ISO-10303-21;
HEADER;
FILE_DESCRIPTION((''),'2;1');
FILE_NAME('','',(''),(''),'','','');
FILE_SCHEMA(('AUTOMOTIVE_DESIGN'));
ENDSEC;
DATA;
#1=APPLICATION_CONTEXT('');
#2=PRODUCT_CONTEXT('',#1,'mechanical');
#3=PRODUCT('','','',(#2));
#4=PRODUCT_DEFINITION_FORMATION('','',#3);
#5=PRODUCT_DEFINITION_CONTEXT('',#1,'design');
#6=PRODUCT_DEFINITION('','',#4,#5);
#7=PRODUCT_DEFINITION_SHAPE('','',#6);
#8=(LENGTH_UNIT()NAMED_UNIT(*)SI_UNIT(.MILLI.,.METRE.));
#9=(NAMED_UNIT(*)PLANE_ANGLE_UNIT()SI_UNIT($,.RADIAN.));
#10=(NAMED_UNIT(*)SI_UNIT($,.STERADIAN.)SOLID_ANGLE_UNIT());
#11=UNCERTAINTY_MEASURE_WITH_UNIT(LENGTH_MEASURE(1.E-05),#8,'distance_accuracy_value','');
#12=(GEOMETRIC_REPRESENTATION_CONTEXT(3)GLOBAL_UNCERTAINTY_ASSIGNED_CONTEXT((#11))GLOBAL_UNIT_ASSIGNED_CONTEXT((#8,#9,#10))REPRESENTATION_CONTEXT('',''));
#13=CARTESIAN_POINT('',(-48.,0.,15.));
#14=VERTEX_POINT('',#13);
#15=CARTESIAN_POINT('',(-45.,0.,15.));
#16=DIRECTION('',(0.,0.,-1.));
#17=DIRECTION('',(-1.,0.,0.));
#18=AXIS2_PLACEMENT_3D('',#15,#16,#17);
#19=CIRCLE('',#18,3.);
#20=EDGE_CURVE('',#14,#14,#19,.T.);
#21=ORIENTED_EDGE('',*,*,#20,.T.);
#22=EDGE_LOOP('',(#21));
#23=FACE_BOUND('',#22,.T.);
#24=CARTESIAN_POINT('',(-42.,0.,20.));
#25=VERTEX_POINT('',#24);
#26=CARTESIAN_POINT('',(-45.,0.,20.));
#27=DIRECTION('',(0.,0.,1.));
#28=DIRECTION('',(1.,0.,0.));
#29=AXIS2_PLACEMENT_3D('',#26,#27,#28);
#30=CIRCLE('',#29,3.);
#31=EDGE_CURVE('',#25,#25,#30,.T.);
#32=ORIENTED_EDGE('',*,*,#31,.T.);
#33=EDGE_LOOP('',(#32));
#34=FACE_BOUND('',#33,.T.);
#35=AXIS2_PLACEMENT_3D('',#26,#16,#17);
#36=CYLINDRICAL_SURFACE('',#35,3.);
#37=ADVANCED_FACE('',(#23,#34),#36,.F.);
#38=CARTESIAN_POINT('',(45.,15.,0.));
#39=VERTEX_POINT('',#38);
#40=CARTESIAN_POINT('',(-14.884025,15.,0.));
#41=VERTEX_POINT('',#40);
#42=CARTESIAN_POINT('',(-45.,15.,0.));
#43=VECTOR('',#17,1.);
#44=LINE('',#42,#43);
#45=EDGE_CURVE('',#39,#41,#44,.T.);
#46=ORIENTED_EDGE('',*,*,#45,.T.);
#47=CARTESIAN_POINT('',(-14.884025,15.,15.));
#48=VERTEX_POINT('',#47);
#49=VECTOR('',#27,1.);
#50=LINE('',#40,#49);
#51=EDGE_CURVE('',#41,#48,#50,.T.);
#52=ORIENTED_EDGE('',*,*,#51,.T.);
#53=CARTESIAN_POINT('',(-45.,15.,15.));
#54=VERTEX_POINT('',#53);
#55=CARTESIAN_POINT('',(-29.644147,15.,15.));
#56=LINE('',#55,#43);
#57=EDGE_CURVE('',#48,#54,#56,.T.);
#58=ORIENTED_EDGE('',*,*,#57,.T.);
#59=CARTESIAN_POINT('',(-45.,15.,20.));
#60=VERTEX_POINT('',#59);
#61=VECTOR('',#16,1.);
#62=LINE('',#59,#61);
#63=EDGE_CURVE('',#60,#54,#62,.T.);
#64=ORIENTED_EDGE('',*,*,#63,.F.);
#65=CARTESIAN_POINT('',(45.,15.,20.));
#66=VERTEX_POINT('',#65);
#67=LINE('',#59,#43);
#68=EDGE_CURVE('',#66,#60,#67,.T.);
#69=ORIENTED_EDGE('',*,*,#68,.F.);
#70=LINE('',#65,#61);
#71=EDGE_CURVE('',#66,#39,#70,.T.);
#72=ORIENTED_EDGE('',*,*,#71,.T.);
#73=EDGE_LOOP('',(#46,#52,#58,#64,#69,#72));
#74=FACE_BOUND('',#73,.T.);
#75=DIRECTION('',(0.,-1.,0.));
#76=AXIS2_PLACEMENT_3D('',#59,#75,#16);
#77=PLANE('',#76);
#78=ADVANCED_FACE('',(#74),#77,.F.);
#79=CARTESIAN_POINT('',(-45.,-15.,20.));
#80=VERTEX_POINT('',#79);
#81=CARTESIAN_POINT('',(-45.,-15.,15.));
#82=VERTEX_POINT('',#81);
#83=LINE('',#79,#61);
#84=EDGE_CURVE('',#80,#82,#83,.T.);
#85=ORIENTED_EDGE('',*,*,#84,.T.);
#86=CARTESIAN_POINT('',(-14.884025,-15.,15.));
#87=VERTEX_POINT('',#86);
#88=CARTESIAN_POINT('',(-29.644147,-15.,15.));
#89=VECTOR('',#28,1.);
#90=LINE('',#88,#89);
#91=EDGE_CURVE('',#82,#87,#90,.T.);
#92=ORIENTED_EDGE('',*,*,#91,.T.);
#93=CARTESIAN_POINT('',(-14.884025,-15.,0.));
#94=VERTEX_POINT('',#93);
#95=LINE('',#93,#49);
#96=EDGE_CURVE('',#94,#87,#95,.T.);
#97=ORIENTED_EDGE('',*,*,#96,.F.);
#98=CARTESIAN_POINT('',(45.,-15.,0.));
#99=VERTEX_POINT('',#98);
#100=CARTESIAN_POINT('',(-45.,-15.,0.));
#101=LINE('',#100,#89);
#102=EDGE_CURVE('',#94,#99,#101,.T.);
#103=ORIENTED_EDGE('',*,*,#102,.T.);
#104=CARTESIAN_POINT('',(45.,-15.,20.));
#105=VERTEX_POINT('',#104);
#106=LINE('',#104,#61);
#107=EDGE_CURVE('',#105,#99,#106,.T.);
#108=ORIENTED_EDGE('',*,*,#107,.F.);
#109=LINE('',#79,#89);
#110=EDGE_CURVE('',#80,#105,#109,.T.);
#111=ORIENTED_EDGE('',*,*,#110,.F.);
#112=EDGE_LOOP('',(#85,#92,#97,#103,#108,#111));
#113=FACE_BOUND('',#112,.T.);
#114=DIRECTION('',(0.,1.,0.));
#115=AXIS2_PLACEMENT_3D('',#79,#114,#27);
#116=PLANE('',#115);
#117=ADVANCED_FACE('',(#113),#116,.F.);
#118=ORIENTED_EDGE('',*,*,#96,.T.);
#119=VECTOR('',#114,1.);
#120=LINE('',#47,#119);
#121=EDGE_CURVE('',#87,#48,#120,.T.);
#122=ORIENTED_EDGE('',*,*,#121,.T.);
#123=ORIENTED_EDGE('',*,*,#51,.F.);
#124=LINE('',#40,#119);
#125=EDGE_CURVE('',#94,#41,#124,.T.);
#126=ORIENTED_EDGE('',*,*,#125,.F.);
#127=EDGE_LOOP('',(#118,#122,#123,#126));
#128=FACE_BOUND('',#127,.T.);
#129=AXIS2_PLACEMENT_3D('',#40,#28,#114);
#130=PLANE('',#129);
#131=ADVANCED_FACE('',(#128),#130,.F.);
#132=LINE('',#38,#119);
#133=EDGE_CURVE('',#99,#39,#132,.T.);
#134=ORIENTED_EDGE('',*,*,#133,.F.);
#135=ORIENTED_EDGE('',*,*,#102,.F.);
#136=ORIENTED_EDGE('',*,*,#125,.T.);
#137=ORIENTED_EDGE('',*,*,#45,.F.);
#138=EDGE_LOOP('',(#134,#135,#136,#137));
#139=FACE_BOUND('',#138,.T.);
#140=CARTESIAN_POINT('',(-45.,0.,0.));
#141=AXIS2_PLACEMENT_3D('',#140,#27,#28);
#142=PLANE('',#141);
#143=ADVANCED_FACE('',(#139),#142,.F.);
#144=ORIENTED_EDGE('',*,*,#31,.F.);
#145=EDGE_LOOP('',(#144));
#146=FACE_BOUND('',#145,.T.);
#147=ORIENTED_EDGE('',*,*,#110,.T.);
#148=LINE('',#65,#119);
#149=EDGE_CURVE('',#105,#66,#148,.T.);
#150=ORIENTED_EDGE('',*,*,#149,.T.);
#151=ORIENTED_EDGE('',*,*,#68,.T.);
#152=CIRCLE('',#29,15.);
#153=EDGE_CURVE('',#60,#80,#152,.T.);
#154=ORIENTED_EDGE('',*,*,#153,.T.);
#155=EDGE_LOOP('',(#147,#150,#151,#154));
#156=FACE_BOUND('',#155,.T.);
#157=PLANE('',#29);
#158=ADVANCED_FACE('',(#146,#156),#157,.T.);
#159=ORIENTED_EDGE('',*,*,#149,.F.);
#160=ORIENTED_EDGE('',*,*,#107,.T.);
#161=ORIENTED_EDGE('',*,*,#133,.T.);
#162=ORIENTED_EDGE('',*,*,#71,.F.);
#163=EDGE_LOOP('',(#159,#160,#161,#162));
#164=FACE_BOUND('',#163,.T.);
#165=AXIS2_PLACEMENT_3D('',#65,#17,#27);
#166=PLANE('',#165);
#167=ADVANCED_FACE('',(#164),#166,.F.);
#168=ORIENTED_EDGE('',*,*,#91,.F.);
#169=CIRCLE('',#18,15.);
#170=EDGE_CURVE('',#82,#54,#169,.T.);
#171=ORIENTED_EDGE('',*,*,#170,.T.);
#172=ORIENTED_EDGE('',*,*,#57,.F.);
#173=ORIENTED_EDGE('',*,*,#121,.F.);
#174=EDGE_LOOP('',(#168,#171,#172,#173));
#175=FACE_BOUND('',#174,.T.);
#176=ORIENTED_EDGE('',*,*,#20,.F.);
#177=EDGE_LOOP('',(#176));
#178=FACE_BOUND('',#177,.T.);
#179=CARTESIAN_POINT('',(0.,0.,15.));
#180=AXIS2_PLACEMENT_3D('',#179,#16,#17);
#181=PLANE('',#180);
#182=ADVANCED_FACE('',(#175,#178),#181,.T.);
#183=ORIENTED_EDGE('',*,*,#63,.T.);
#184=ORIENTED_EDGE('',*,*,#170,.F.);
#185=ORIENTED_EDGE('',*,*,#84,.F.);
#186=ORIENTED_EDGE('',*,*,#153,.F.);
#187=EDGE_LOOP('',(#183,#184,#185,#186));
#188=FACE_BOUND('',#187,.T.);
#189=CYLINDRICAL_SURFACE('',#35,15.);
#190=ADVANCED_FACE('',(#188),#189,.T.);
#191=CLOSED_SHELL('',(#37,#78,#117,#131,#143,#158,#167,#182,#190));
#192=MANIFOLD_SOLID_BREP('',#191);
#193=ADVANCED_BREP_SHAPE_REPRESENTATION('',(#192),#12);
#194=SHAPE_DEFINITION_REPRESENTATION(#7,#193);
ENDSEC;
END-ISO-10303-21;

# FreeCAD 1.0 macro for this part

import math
import FreeCAD as App
import Part
import Sketcher
from FreeCAD import Vector
Q = App.Units.Quantity

doc = App.newDocument("Part")
body = doc.addObject("PartDesign::Body", "Body")

# Sketch on XY plane
sketch1 = body.newObject("Sketcher::SketchObject", "Sketch")
sketch1.AttachmentSupport = (doc.getObject("XY_Plane"), [""])
sketch1.MapMode = "FlatFace"
sketch1.addGeometry(Part.LineSegment(Vector(45, 15, 0), Vector(-45, 15, 0)), False)
sketch1.addGeometry(Part.ArcOfCircle(Part.Circle(Vector(-45, 0, 0), Vector(0, 0, 1), 15), math.radians(90), math.radians(270)), False)
sketch1.addGeometry(Part.LineSegment(Vector(-45, -15, 0), Vector(45, -15, 0)), False)
sketch1.addGeometry(Part.LineSegment(Vector(45, -15, 0), Vector(45, 15, 0)), False)
sketch1.addGeometry(Part.Circle(Vector(-45, 0, 0), Vector(0, 0, 1), 3), False)
sketch1.addConstraint(Sketcher.Constraint("Tangent", 0, 2, 1, 1))
sketch1.addConstraint(Sketcher.Constraint("Tangent", 1, 2, 2, 1))
sketch1.addConstraint(Sketcher.Constraint("Coincident", 2, 2, 3, 1))
sketch1.addConstraint(Sketcher.Constraint("Coincident", 3, 2, 0, 1))
sketch1.addConstraint(Sketcher.Constraint("Horizontal", 0))
sketch1.addConstraint(Sketcher.Constraint("Horizontal", 2))
sketch1.addConstraint(Sketcher.Constraint("Vertical", 3))
sketch1.addConstraint(Sketcher.Constraint("Coincident", 4, 3, 1, 3))
sketch1.addConstraint(Sketcher.Constraint("Symmetric", 0, 2, 2, 2, -1, 1))
sketch1.addConstraint(Sketcher.Constraint("Diameter", 4, Q("6 mm")))
sketch1.addConstraint(Sketcher.Constraint("Radius", 1, Q("15 mm")))
sketch1.addConstraint(Sketcher.Constraint("DistanceX", 0, 2, 0, 1, Q("90 mm")))
pad1 = body.newObject("PartDesign::Pad", "Pad")
pad1.Profile = sketch1
pad1.Length = 20

# Sketch on XY plane
sketch2 = body.newObject("Sketcher::SketchObject", "Sketch001")
sketch2.AttachmentSupport = (doc.getObject("XY_Plane"), [""])
sketch2.MapMode = "FlatFace"
sketch2.AttachmentOffset = App.Placement(Vector(0, 0, 15), App.Rotation())
sketch2.addGeometry(Part.LineSegment(Vector(-62, 15, 0), Vector(-62, -15, 0)), False)
sketch2.addGeometry(Part.LineSegment(Vector(-62, -15, 0), Vector(-30, -15, 0)), False)
sketch2.addGeometry(Part.LineSegment(Vector(-30, -15, 0), Vector(-30, 15, 0)), False)
sketch2.addGeometry(Part.LineSegment(Vector(-30, 15, 0), Vector(-62, 15, 0)), False)
sketch2.addConstraint(Sketcher.Constraint("Coincident", 0, 2, 1, 1))
sketch2.addConstraint(Sketcher.Constraint("Coincident", 1, 2, 2, 1))
sketch2.addConstraint(Sketcher.Constraint("Coincident", 2, 2, 3, 1))
sketch2.addConstraint(Sketcher.Constraint("Coincident", 3, 2, 0, 1))
sketch2.addConstraint(Sketcher.Constraint("Vertical", 0))
sketch2.addConstraint(Sketcher.Constraint("Horizontal", 1))
sketch2.addConstraint(Sketcher.Constraint("Vertical", 2))
sketch2.addConstraint(Sketcher.Constraint("Horizontal", 3))
sketch2.addConstraint(Sketcher.Constraint("DistanceY", 0, 2, 0, 1, Q("30 mm")))
sketch2.addConstraint(Sketcher.Constraint("DistanceY", 0, 2, -1, 1, Q("15 mm")))
sketch2.addConstraint(Sketcher.Constraint("DistanceX", 1, 1, 1, 2, Q("31.98599 mm")))
sketch2.addConstraint(Sketcher.Constraint("DistanceX", 0, 2, -1, 1, Q("61.630137 mm")))
pocket1 = body.newObject("PartDesign::Pocket", "Pocket")
pocket1.Profile = sketch2
pocket1.Type = "ThroughAll"

# Sketch on XY plane
sketch3 = body.newObject("Sketcher::SketchObject", "Sketch002")
sketch3.AttachmentSupport = (doc.getObject("XY_Plane"), [""])
sketch3.MapMode = "FlatFace"
sketch3.AttachmentOffset = App.Placement(Vector(0, 0, 15), App.Rotation())
sketch3.addGeometry(Part.LineSegment(Vector(-60, 15, 0), Vector(-60, -15, 0)), False)
sketch3.addGeometry(Part.LineSegment(Vector(-60, -15, 0), Vector(-15, -15, 0)), False)
sketch3.addGeometry(Part.LineSegment(Vector(-15, -15, 0), Vector(-15, 15, 0)), False)
sketch3.addGeometry(Part.LineSegment(Vector(-15, 15, 0), Vector(-60, 15, 0)), False)
sketch3.addConstraint(Sketcher.Constraint("Coincident", 0, 2, 1, 1))
sketch3.addConstraint(Sketcher.Constraint("Coincident", 1, 2, 2, 1))
sketch3.addConstraint(Sketcher.Constraint("Coincident", 2, 2, 3, 1))
sketch3.addConstraint(Sketcher.Constraint("Coincident", 3, 2, 0, 1))
sketch3.addConstraint(Sketcher.Constraint("Vertical", 0))
sketch3.addConstraint(Sketcher.Constraint("Horizontal", 1))
sketch3.addConstraint(Sketcher.Constraint("Vertical", 2))
sketch3.addConstraint(Sketcher.Constraint("Horizontal", 3))
sketch3.addConstraint(Sketcher.Constraint("DistanceX", 1, 1, 1, 2, Q("45 mm")))
sketch3.addConstraint(Sketcher.Constraint("DistanceY", 0, 2, 0, 1, Q("30 mm")))
sketch3.addConstraint(Sketcher.Constraint("DistanceY", 0, 2, -1, 1, Q("15 mm")))
sketch3.addConstraint(Sketcher.Constraint("DistanceX", 0, 2, -1, 1, Q("59.884025 mm")))
pocket2 = body.newObject("PartDesign::Pocket", "Pocket001")
pocket2.Profile = sketch3
pocket2.Type = "ThroughAll"

doc.recompute()
